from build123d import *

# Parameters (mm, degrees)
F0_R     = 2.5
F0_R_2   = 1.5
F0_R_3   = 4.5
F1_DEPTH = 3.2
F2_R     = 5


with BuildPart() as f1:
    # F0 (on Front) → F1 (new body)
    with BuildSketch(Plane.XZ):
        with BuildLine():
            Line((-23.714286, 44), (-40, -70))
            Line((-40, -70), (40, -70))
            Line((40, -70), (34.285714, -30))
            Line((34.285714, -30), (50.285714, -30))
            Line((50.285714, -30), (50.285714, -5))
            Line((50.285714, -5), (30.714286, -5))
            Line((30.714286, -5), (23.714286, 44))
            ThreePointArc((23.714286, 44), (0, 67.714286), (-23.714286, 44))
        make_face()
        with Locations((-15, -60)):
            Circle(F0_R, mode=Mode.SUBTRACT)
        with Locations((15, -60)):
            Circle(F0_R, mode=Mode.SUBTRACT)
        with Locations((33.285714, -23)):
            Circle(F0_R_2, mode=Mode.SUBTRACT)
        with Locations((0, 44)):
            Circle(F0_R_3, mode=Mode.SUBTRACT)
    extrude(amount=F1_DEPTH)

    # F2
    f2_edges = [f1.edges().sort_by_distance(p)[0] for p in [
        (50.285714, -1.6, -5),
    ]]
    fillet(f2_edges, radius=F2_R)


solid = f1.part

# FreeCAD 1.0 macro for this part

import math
import FreeCAD as App
import Part
import Sketcher
from FreeCAD import Vector


def edges_at(feature, points):
    """Names of the edges that pass closest to the given points."""
    edges = feature.Shape.Edges
    near = lambda p: min(range(len(edges)), key=lambda i: edges[i].distToShape(Part.Vertex(*p))[0])
    return sorted({f"Edge{near(p) + 1}" for p in points})

doc = App.newDocument("Part")
body = doc.addObject("PartDesign::Body", "Body")

# Sketch on XZ plane
sketch1 = body.newObject("Sketcher::SketchObject", "Sketch")
sketch1.AttachmentSupport = (doc.getObject("XZ_Plane"), [""])
sketch1.MapMode = "FlatFace"
sketch1.addGeometry(Part.LineSegment(Vector(-23.7, 44, 0), Vector(-40, -70, 0)), False)
sketch1.addGeometry(Part.LineSegment(Vector(-40, -70, 0), Vector(40, -70, 0)), False)
sketch1.addGeometry(Part.LineSegment(Vector(40, -70, 0), Vector(34.3, -30, 0)), False)
sketch1.addGeometry(Part.LineSegment(Vector(34.3, -30, 0), Vector(50.3, -30, 0)), False)
sketch1.addGeometry(Part.LineSegment(Vector(50.3, -30, 0), Vector(50.3, -5, 0)), False)
sketch1.addGeometry(Part.LineSegment(Vector(50.3, -5, 0), Vector(30.7, -5, 0)), False)
sketch1.addGeometry(Part.LineSegment(Vector(30.7, -5, 0), Vector(23.7, 44, 0)), False)
sketch1.addGeometry(Part.ArcOfCircle(Part.Circle(Vector(0, 44, 0), Vector(0, 0, 1), 23.7), math.radians(0), math.radians(180)), False)
sketch1.addGeometry(Part.Circle(Vector(-15, -60, 0), Vector(0, 0, 1), 2.5), False)
sketch1.addGeometry(Part.Circle(Vector(15, -60, 0), Vector(0, 0, 1), 2.5), False)
sketch1.addGeometry(Part.Circle(Vector(33.3, -23, 0), Vector(0, 0, 1), 1.5), False)
sketch1.addGeometry(Part.Circle(Vector(0, 44, 0), Vector(0, 0, 1), 4.5), False)
sketch1.addConstraint(Sketcher.Constraint("Coincident", 0, 2, 1, 1))
sketch1.addConstraint(Sketcher.Constraint("Coincident", 1, 2, 2, 1))
sketch1.addConstraint(Sketcher.Constraint("Coincident", 2, 2, 3, 1))
sketch1.addConstraint(Sketcher.Constraint("Coincident", 3, 2, 4, 1))
sketch1.addConstraint(Sketcher.Constraint("Coincident", 4, 2, 5, 1))
sketch1.addConstraint(Sketcher.Constraint("Coincident", 5, 2, 6, 1))
sketch1.addConstraint(Sketcher.Constraint("Coincident", 6, 2, 7, 1))
sketch1.addConstraint(Sketcher.Constraint("Coincident", 7, 2, 0, 1))
sketch1.addConstraint(Sketcher.Constraint("Horizontal", 1))
sketch1.addConstraint(Sketcher.Constraint("Horizontal", 3))
sketch1.addConstraint(Sketcher.Constraint("Vertical", 4))
sketch1.addConstraint(Sketcher.Constraint("Horizontal", 5))
sketch1.addConstraint(Sketcher.Constraint("Coincident", 11, 3, 7, 3))
sketch1.addConstraint(Sketcher.Constraint("Equal", 8, 9))
sketch1.addConstraint(Sketcher.Constraint("Symmetric", 8, 3, 9, 3, -2))
sketch1.addConstraint(Sketcher.Constraint("Symmetric", 6, 2, 7, 2, -2))
sketch1.addConstraint(Sketcher.Constraint("Parallel", 2, 6))
sketch1.addConstraint(Sketcher.Constraint("Horizontal", 11, 3, 6, 2))
sketch1.addConstraint(Sketcher.Constraint("Diameter", 8, 5.0))
sketch1.addConstraint(Sketcher.Constraint("Diameter", 10, 3.0))
sketch1.addConstraint(Sketcher.Constraint("Diameter", 11, 9.0))
sketch1.addConstraint(Sketcher.Constraint("DistanceX", 1, 1, 1, 2, 80.0))
sketch1.addConstraint(Sketcher.Constraint("DistanceX", 3, 1, 3, 2, 16.0))
sketch1.addConstraint(Sketcher.Constraint("DistanceY", 4, 1, 4, 2, 25.0))
sketch1.addConstraint(Sketcher.Constraint("DistanceY", -1, 1, 7, 3, 44.0))
sketch1.addConstraint(Sketcher.Constraint("DistanceX", 8, 3, -1, 1, 15.0))
sketch1.addConstraint(Sketcher.Constraint("DistanceY", 8, 3, -1, 1, 60.0))
sketch1.addConstraint(Sketcher.Constraint("DistanceY", 10, 3, -1, 1, 23.0))
sketch1.addConstraint(Sketcher.Constraint("DistanceX", 0, 2, -1, 1, 40.0))
sketch1.addConstraint(Sketcher.Constraint("DistanceY", 0, 2, -1, 1, 70.0))
sketch1.addConstraint(Sketcher.Constraint("DistanceY", 2, 2, -1, 1, 30.0))
sketch1.addConstraint(Sketcher.Constraint("DistanceX", 10, 3, 2, 2, 1.0))
sketch1.addConstraint(Sketcher.Constraint("DistanceX", 6, 2, 5, 2, 7.0))
sketch1.addConstraint(Sketcher.Constraint("DistanceX", 7, 2, 10, 3, 57.0))
pad1 = body.newObject("PartDesign::Pad", "Pad")
pad1.Profile = sketch1
pad1.Length = 3.2
doc.recompute()

fillet = body.newObject("PartDesign::Fillet", "Fillet")
fillet.Base = (pad1, edges_at(pad1, [(50.286, -1.6, -5)]))
fillet.Radius = 5

doc.recompute()
